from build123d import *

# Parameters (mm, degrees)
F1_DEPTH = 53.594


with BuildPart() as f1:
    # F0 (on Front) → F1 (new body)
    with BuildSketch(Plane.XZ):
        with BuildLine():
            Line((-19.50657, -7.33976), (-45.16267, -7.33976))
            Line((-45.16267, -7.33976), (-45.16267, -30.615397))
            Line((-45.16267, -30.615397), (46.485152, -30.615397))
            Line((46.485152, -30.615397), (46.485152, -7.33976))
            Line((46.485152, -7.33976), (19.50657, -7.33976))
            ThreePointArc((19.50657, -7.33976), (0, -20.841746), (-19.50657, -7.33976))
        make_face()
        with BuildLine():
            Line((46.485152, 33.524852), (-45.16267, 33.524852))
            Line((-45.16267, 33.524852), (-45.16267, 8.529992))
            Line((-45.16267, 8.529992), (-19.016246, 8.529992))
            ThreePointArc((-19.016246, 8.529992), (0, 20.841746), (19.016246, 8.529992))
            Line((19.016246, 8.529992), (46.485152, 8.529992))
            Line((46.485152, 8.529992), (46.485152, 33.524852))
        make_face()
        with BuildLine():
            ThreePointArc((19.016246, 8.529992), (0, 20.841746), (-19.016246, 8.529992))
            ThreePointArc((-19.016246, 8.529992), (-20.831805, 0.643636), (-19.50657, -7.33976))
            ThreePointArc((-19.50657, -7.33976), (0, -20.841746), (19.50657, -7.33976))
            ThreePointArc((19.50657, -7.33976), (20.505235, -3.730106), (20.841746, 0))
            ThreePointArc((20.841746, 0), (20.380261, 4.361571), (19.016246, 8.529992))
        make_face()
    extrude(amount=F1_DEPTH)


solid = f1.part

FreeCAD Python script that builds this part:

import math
import FreeCAD as App
import Part
import Sketcher

V = App.Vector
Q = App.Units.Quantity

doc = App.newDocument("Part")
body = doc.addObject("PartDesign::Body", "Body")

sketch1 = doc.addObject("Sketcher::SketchObject", "Sketch")
body.addObject(sketch1)
sketch1.AttachmentSupport = (doc.XZ_Plane, [""])
sketch1.MapMode = "FlatFace"
sketch1.addGeometry([
    Part.LineSegment(V(-19.50657, -7.33976, 0), V(-45.16267, -7.33976, 0)),
    Part.LineSegment(V(-45.16267, -7.33976, 0), V(-45.16267, -30.615397, 0)),
    Part.LineSegment(V(-45.16267, -30.615397, 0), V(46.485152, -30.615397, 0)),
    Part.LineSegment(V(46.485152, -30.615397, 0), V(46.485152, -7.33976, 0)),
    Part.LineSegment(V(46.485152, -7.33976, 0), V(19.50657, -7.33976, 0)),
    Part.ArcOfCircle(Part.Circle(V(-0.000014, 0.000004, 0), V(0, 0, 1), 20.84176), math.radians(-20.619869), math.radians(-0.000012)),
    Part.ArcOfCircle(Part.Circle(V(-0.000038, -0.000008, 0), V(0, 0, 1), 20.841784), math.radians(0.000022), math.radians(24.159236)),
    Part.LineSegment(V(19.016246, 8.529992, 0), V(46.485152, 8.529992, 0)),
    Part.LineSegment(V(46.485152, 8.529992, 0), V(46.485152, 33.524852, 0)),
    Part.LineSegment(V(46.485152, 33.524852, 0), V(-45.16267, 33.524852, 0)),
    Part.LineSegment(V(-45.16267, 33.524852, 0), V(-45.16267, 8.529992, 0)),
    Part.LineSegment(V(-45.16267, 8.529992, 0), V(-19.016246, 8.529992, 0)),
    Part.ArcOfCircle(Part.Circle(V(-0.000001, 0.000001, 0), V(0, 0, 1), 20.841744), math.radians(155.840742), math.radians(200.619875)),
], False)
sketch1.addConstraint([
    Sketcher.Constraint("Coincident", 0, 2, 1, 1),
    Sketcher.Constraint("Coincident", 1, 2, 2, 1),
    Sketcher.Constraint("Coincident", 2, 2, 3, 1),
    Sketcher.Constraint("Coincident", 3, 2, 4, 1),
    Sketcher.Constraint("Coincident", 4, 2, 5, 1),
    Sketcher.Constraint("Tangent", 5, 2, 6, 1),
    Sketcher.Constraint("Coincident", 6, 2, 7, 1),
    Sketcher.Constraint("Coincident", 7, 2, 8, 1),
    Sketcher.Constraint("Coincident", 8, 2, 9, 1),
    Sketcher.Constraint("Coincident", 9, 2, 10, 1),
    Sketcher.Constraint("Coincident", 10, 2, 11, 1),
    Sketcher.Constraint("Coincident", 11, 2, 12, 1),
    Sketcher.Constraint("Coincident", 12, 2, 0, 1),
    Sketcher.Constraint("Horizontal", 0),
    Sketcher.Constraint("Vertical", 1),
    Sketcher.Constraint("Horizontal", 2),
    Sketcher.Constraint("Vertical", 3),
    Sketcher.Constraint("Horizontal", 4),
    Sketcher.Constraint("Horizontal", 7),
    Sketcher.Constraint("Vertical", 8),
    Sketcher.Constraint("Horizontal", 9),
    Sketcher.Constraint("Vertical", 10),
    Sketcher.Constraint("Horizontal", 11),
    Sketcher.Constraint("Coincident", 12, 3, -1, 1),
    Sketcher.Constraint("Symmetric", 6, 2, 11, 2, -2),
    Sketcher.Constraint("Symmetric", 4, 2, 12, 2, -2),
    Sketcher.Constraint("PointOnObject", 5, 2, -1),
    Sketcher.Constraint("Vertical", 3, 2, 7, 2),
    Sketcher.Constraint("Vertical", 1, 2, 9, 2),
    Sketcher.Constraint("Radius", 5, Q("20.84176 mm")),
    Sketcher.Constraint("DistanceX", 0, 2, 0, 1, Q("25.6561 mm")),
    Sketcher.Constraint("Radius", 6, Q("20.841784 mm")),
    Sketcher.Constraint("Radius", 12, Q("20.841744 mm")),
    Sketcher.Constraint("DistanceX", 2, 1, 2, 2, Q("91.647822 mm")),
    Sketcher.Constraint("DistanceX", 4, 2, 4, 1, Q("26.978582 mm")),
    Sketcher.Constraint("DistanceY", 8, 1, 8, 2, Q("24.99486 mm")),
    Sketcher.Constraint("DistanceY", 1, 2, 5, 3, Q("30.615401 mm")),
    Sketcher.Constraint("DistanceX", 6, 2, 5, 2, Q("1.8255 mm")),
])
pad1 = doc.addObject("PartDesign::Pad", "Pad")
body.addObject(pad1)
pad1.Profile = sketch1
pad1.Length = Q("2.11 in")

doc.recompute()
